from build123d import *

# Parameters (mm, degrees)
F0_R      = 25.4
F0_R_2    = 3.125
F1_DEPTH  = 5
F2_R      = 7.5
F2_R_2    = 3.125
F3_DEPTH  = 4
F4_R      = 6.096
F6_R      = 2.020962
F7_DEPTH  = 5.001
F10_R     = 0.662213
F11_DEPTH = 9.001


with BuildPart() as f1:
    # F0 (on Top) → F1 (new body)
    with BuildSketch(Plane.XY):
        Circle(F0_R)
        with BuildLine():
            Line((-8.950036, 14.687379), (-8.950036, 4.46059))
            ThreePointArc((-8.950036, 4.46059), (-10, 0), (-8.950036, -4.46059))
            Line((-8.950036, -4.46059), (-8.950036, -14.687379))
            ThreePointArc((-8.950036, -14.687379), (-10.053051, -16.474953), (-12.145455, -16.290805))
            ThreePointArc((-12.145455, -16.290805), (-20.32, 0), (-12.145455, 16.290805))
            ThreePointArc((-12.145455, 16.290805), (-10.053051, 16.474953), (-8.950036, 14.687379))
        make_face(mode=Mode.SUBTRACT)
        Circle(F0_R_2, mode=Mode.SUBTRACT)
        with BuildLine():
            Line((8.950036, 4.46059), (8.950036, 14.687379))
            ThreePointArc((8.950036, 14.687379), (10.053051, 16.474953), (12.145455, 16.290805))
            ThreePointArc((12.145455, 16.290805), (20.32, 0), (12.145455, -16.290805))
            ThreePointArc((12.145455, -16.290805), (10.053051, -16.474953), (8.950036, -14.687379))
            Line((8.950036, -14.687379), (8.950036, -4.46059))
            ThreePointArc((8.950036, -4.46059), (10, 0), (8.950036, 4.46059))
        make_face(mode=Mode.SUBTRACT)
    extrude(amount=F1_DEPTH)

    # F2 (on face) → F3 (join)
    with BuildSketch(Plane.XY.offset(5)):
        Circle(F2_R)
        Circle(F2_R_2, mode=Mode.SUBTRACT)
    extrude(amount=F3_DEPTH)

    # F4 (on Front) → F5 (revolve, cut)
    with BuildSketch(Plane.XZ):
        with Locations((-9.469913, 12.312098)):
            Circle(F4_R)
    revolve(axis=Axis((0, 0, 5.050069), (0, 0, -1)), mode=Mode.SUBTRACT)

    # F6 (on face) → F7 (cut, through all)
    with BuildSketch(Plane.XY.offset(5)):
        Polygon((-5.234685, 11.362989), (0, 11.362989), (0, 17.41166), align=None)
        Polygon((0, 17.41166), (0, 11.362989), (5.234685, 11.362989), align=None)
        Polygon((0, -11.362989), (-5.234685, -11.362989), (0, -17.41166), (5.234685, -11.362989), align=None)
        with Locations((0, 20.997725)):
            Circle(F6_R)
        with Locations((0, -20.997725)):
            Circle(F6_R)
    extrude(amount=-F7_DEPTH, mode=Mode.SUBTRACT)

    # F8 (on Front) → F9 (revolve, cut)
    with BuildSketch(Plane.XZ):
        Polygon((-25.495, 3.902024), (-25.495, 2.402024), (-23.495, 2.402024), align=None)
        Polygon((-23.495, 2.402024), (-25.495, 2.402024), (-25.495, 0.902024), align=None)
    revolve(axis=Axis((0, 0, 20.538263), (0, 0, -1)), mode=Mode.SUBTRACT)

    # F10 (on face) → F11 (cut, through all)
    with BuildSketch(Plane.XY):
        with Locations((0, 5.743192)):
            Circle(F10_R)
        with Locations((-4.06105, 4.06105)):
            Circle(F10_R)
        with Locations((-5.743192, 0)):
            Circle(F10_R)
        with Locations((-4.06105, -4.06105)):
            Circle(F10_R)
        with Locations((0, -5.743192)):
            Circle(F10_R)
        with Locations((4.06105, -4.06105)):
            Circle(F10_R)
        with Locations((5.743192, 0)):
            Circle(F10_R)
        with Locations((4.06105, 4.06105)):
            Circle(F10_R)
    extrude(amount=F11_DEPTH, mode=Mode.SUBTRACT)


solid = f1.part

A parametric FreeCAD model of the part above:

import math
import FreeCAD as App
import Part
import Sketcher
Q = App.Units.Quantity

doc = App.newDocument("Part")
body = doc.addObject("PartDesign::Body", "Body")

sketch1 = body.newObject("Sketcher::SketchObject", "Sketch")
sketch1.AttachmentSupport = (doc.getObject("XY_Plane"), [""])
sketch1.MapMode = "FlatFace"
sketch1.addGeometry([
    Part.Circle(App.Vector(0, 0, 0), App.Vector(0, 0, 1), 25.4),
    Part.Circle(App.Vector(0, 0, 0), App.Vector(0, 0, 1), 3.125),
    Part.ArcOfCircle(Part.Circle(App.Vector(-10.950036, 14.68738, 0), App.Vector(0, 0, 1), 2), math.radians(-0.000028), math.radians(126.706042)),
    Part.LineSegment(App.Vector(-8.950036, 14.687379, 0), App.Vector(-8.950036, 4.46059, 0)),
    Part.ArcOfCircle(Part.Circle(App.Vector(0.000004, 0, 0), App.Vector(0, 0, 1), 10.000004), math.radians(153.508897), math.radians(206.491103)),
    Part.LineSegment(App.Vector(-8.950036, -4.46059, 0), App.Vector(-8.950036, -14.687379, 0)),
    Part.ArcOfCircle(Part.Circle(App.Vector(-10.950036, -14.68738, 0), App.Vector(0, 0, 1), 2), math.radians(-126.706042), math.radians(0.000028)),
    Part.ArcOfCircle(Part.Circle(App.Vector(0, 0, 0), App.Vector(0, 0, 1), 20.32), math.radians(126.706021), math.radians(233.293979)),
    Part.ArcOfCircle(Part.Circle(App.Vector(-0.000004, 0, 0), App.Vector(0, 0, 1), 10.000004), math.radians(-26.491103), math.radians(26.491103)),
    Part.LineSegment(App.Vector(8.950036, 4.46059, 0), App.Vector(8.950036, 14.687379, 0)),
    Part.ArcOfCircle(Part.Circle(App.Vector(10.950036, 14.68738, 0), App.Vector(0, 0, 1), 2), math.radians(53.293958), math.radians(180.000028)),
    Part.ArcOfCircle(Part.Circle(App.Vector(0, 0, 0), App.Vector(0, 0, 1), 20.32), math.radians(-53.293979), math.radians(53.293979)),
    Part.ArcOfCircle(Part.Circle(App.Vector(10.950036, -14.68738, 0), App.Vector(0, 0, 1), 2), math.radians(179.999972), math.radians(306.706042)),
    Part.LineSegment(App.Vector(8.950036, -14.687379, 0), App.Vector(8.950036, -4.46059, 0)),
], False)
sketch1.addConstraint([
    Sketcher.Constraint("Tangent", 2, 1, 3, 1),
    Sketcher.Constraint("Coincident", 3, 2, 4, 1),
    Sketcher.Constraint("Coincident", 4, 2, 5, 1),
    Sketcher.Constraint("Tangent", 5, 2, 6, 2),
    Sketcher.Constraint("Tangent", 6, 1, 7, 2),
    Sketcher.Constraint("Tangent", 7, 1, 2, 2),
    Sketcher.Constraint("Coincident", 8, 2, 9, 1),
    Sketcher.Constraint("Tangent", 9, 2, 10, 2),
    Sketcher.Constraint("Tangent", 10, 1, 11, 2),
    Sketcher.Constraint("Tangent", 11, 1, 12, 2),
    Sketcher.Constraint("Tangent", 12, 1, 13, 1),
    Sketcher.Constraint("Coincident", 13, 2, 8, 1),
    Sketcher.Constraint("Vertical", 3),
    Sketcher.Constraint("Vertical", 5),
    Sketcher.Constraint("Vertical", 9),
    Sketcher.Constraint("Vertical", 13),
    Sketcher.Constraint("Coincident", 0, 3, -1, 1),
    Sketcher.Constraint("Coincident", 1, 3, -1, 1),
    Sketcher.Constraint("Coincident", 4, 3, -1, 1),
    Sketcher.Constraint("Coincident", 7, 3, -1, 1),
    Sketcher.Constraint("Coincident", 8, 3, -1, 1),
    Sketcher.Constraint("Coincident", 11, 3, -1, 1),
    Sketcher.Constraint("Equal", 2, 6),
    Sketcher.Constraint("Equal", 4, 8),
    Sketcher.Constraint("Equal", 6, 10),
    Sketcher.Constraint("Equal", 7, 11),
    Sketcher.Constraint("Equal", 10, 12),
    Sketcher.Constraint("Horizontal", 2, 3, 10, 3),
    Sketcher.Constraint("Horizontal", 6, 3, 12, 3),
    Sketcher.Constraint("Vertical", 2, 3, 6, 3),
    Sketcher.Constraint("Radius", 2, Q("2 mm")),
    Sketcher.Constraint("Diameter", 0, Q("50.8 mm")),
    Sketcher.Constraint("Diameter", 1, Q("6.25 mm")),
    Sketcher.Constraint("Radius", 7, Q("20.32 mm")),
    Sketcher.Constraint("Radius", 4, Q("10.000004 mm")),
    Sketcher.Constraint("DistanceY", 3, 2, 3, 1, Q("10.226789 mm")),
])
pad1 = body.newObject("PartDesign::Pad", "Pad")
pad1.Profile = sketch1
pad1.Length = 5

sketch2 = body.newObject("Sketcher::SketchObject", "Sketch001")
sketch2.AttachmentSupport = (doc.getObject("XY_Plane"), [""])
sketch2.MapMode = "FlatFace"
sketch2.AttachmentOffset = App.Placement(App.Vector(0, 0, 5), App.Rotation())
sketch2.addGeometry([
    Part.Circle(App.Vector(0, 0, 0), App.Vector(0, 0, 1), 7.5),
    Part.Circle(App.Vector(0, 0, 0), App.Vector(0, 0, 1), 3.125),
], False)
sketch2.addConstraint([
    Sketcher.Constraint("Coincident", 0, 3, -1, 1),
    Sketcher.Constraint("Coincident", 1, 3, -1, 1),
    Sketcher.Constraint("Diameter", 0, Q("15 mm")),
    Sketcher.Constraint("Diameter", 1, Q("6.25 mm")),
])
pad2 = body.newObject("PartDesign::Pad", "Pad001")
pad2.Profile = sketch2
pad2.Length = 4

sketch3 = body.newObject("Sketcher::SketchObject", "Sketch002")
sketch3.AttachmentSupport = (doc.getObject("XZ_Plane"), [""])
sketch3.MapMode = "FlatFace"
sketch3.addGeometry(Part.Circle(App.Vector(-9.469913, 12.312098, 0), App.Vector(0, 0, 1), 6.096), False)
sketch3.addConstraint([
    Sketcher.Constraint("Diameter", 0, Q("12.192 mm")),
    Sketcher.Constraint("DistanceY", -1, 1, 0, 3, Q("12.312098 mm")),
    Sketcher.Constraint("DistanceX", 0, 3, -1, 1, Q("9.469913 mm")),
])
groove = body.newObject("PartDesign::Groove", "Groove")
groove.Profile = sketch3
groove.ReferenceAxis = (sketch3, ["V_Axis"])
groove.Angle = 360

sketch4 = body.newObject("Sketcher::SketchObject", "Sketch003")
sketch4.AttachmentSupport = (doc.getObject("XY_Plane"), [""])
sketch4.MapMode = "FlatFace"
sketch4.AttachmentOffset = App.Placement(App.Vector(0, 0, 5), App.Rotation())
sketch4.addGeometry([
    Part.LineSegment(App.Vector(-5.234685, 11.362989, 0), App.Vector(5.234685, 11.362989, 0)),
    Part.LineSegment(App.Vector(5.234685, 11.362989, 0), App.Vector(0, 17.41166, 0)),
    Part.LineSegment(App.Vector(0, 17.41166, 0), App.Vector(-5.234685, 11.362989, 0)),
    Part.LineSegment(App.Vector(-5.234685, -11.362989, 0), App.Vector(0, -17.41166, 0)),
    Part.LineSegment(App.Vector(0, -17.41166, 0), App.Vector(5.234685, -11.362989, 0)),
    Part.LineSegment(App.Vector(5.234685, -11.362989, 0), App.Vector(-5.234685, -11.362989, 0)),
    Part.Circle(App.Vector(0, 20.997725, 0), App.Vector(0, 0, 1), 2.020962),
    Part.Circle(App.Vector(0, -20.997725, 0), App.Vector(0, 0, 1), 2.020962),
], False)
sketch4.addConstraint([
    Sketcher.Constraint("Coincident", 0, 2, 1, 1),
    Sketcher.Constraint("Coincident", 1, 2, 2, 1),
    Sketcher.Constraint("Coincident", 2, 2, 0, 1),
    Sketcher.Constraint("Coincident", 3, 2, 4, 1),
    Sketcher.Constraint("Coincident", 4, 2, 5, 1),
    Sketcher.Constraint("Coincident", 5, 2, 3, 1),
    Sketcher.Constraint("Horizontal", 0),
    Sketcher.Constraint("Horizontal", 5),
    Sketcher.Constraint("Equal", 6, 7),
    Sketcher.Constraint("Symmetric", 6, 3, 7, 3, -1, 1),
    Sketcher.Constraint("Symmetric", 1, 2, 3, 2, -1, 1),
    Sketcher.Constraint("Symmetric", 2, 2, 4, 2, -1, 1),
    Sketcher.Constraint("PointOnObject", 6, 3, -2),
    Sketcher.Constraint("PointOnObject", 1, 2, -2),
    Sketcher.Constraint("Parallel", 1, 3),
    Sketcher.Constraint("Vertical", 0, 2, 4, 2),
    Sketcher.Constraint("Diameter", 6, Q("4.041924 mm")),
    Sketcher.Constraint("DistanceX", 0, 1, 0, 2, Q("10.46937 mm")),
    Sketcher.Constraint("Distance", 1, Q("7.999272 mm")),
    Sketcher.Constraint("DistanceY", -1, 1, 0, 2, Q("11.362989 mm")),
    Sketcher.Constraint("DistanceY", 7, 3, 6, 3, Q("41.99545 mm")),
])
pocket1 = body.newObject("PartDesign::Pocket", "Pocket")
pocket1.Profile = sketch4
pocket1.Type = "ThroughAll"

sketch5 = body.newObject("Sketcher::SketchObject", "Sketch004")
sketch5.AttachmentSupport = (doc.getObject("XZ_Plane"), [""])
sketch5.MapMode = "FlatFace"
sketch5.addGeometry([
    Part.LineSegment(App.Vector(-25.495, 3.902024, 0), App.Vector(-25.495, 0.902024, 0)),
    Part.LineSegment(App.Vector(-25.495, 0.902024, 0), App.Vector(-23.495, 2.402024, 0)),
    Part.LineSegment(App.Vector(-23.495, 2.402024, 0), App.Vector(-25.495, 3.902024, 0)),
], False)
sketch5.addConstraint([
    Sketcher.Constraint("Coincident", 0, 2, 1, 1),
    Sketcher.Constraint("Coincident", 1, 2, 2, 1),
    Sketcher.Constraint("Coincident", 2, 2, 0, 1),
    Sketcher.Constraint("Vertical", 0),
    Sketcher.Constraint("Equal", 1, 2),
    Sketcher.Constraint("DistanceY", 0, 2, 0, 1, Q("3 mm")),
    Sketcher.Constraint("DistanceX", 0, 2, 1, 2, Q("2 mm")),
    Sketcher.Constraint("DistanceX", 0, 2, -1, 1, Q("25.495 mm")),
    Sketcher.Constraint("DistanceY", -1, 1, 0, 2, Q("0.902024 mm")),
])
groove2 = body.newObject("PartDesign::Groove", "Groove001")
groove2.Profile = sketch5
groove2.ReferenceAxis = (sketch5, ["V_Axis"])
groove2.Angle = 360

sketch6 = body.newObject("Sketcher::SketchObject", "Sketch005")
sketch6.AttachmentSupport = (doc.getObject("XY_Plane"), [""])
sketch6.MapMode = "FlatFace"
sketch6.addGeometry([
    Part.Circle(App.Vector(0, 5.743192, 0), App.Vector(0, 0, 1), 0.662213),
    Part.Circle(App.Vector(-4.06105, 4.06105, 0), App.Vector(0, 0, 1), 0.662213),
    Part.Circle(App.Vector(-5.743192, 0, 0), App.Vector(0, 0, 1), 0.662213),
    Part.Circle(App.Vector(-4.06105, -4.06105, 0), App.Vector(0, 0, 1), 0.662213),
    Part.Circle(App.Vector(0, -5.743192, 0), App.Vector(0, 0, 1), 0.662213),
    Part.Circle(App.Vector(4.06105, -4.06105, 0), App.Vector(0, 0, 1), 0.662213),
    Part.Circle(App.Vector(5.743192, 0, 0), App.Vector(0, 0, 1), 0.662213),
    Part.Circle(App.Vector(4.06105, 4.06105, 0), App.Vector(0, 0, 1), 0.662213),
], False)
sketch6.addConstraint([
    Sketcher.Constraint("Equal", 0, 1),
    Sketcher.Constraint("Equal", 1, 2),
    Sketcher.Constraint("Equal", 2, 3),
    Sketcher.Constraint("Equal", 3, 4),
    Sketcher.Constraint("Equal", 4, 5),
    Sketcher.Constraint("Equal", 5, 6),
    Sketcher.Constraint("Equal", 6, 7),
    Sketcher.Constraint("Symmetric", 0, 3, 4, 3, -1, 1),
    Sketcher.Constraint("Symmetric", 1, 3, 5, 3, -1, 1),
    Sketcher.Constraint("Symmetric", 2, 3, 6, 3, -1, 1),
    Sketcher.Constraint("Symmetric", 3, 3, 7, 3, -1, 1),
    Sketcher.Constraint("Symmetric", 3, 3, 5, 3, -2),
    Sketcher.Constraint("PointOnObject", 0, 3, -2),
    Sketcher.Constraint("PointOnObject", 2, 3, -1),
    Sketcher.Constraint("Diameter", 0, Q("1.324426 mm")),
    Sketcher.Constraint("DistanceY", 3, 3, 1, 3, Q("8.1221 mm")),
    Sketcher.Constraint("DistanceX", 3, 3, 5, 3, Q("8.1221 mm")),
    Sketcher.Constraint("DistanceY", -1, 1, 0, 3, Q("5.743192 mm")),
    Sketcher.Constraint("DistanceX", 2, 3, -1, 1, Q("5.743192 mm")),
])
pocket2 = body.newObject("PartDesign::Pocket", "Pocket001")
pocket2.Profile = sketch6
pocket2.Type = "ThroughAll"
pocket2.Reversed = True

doc.recompute()
